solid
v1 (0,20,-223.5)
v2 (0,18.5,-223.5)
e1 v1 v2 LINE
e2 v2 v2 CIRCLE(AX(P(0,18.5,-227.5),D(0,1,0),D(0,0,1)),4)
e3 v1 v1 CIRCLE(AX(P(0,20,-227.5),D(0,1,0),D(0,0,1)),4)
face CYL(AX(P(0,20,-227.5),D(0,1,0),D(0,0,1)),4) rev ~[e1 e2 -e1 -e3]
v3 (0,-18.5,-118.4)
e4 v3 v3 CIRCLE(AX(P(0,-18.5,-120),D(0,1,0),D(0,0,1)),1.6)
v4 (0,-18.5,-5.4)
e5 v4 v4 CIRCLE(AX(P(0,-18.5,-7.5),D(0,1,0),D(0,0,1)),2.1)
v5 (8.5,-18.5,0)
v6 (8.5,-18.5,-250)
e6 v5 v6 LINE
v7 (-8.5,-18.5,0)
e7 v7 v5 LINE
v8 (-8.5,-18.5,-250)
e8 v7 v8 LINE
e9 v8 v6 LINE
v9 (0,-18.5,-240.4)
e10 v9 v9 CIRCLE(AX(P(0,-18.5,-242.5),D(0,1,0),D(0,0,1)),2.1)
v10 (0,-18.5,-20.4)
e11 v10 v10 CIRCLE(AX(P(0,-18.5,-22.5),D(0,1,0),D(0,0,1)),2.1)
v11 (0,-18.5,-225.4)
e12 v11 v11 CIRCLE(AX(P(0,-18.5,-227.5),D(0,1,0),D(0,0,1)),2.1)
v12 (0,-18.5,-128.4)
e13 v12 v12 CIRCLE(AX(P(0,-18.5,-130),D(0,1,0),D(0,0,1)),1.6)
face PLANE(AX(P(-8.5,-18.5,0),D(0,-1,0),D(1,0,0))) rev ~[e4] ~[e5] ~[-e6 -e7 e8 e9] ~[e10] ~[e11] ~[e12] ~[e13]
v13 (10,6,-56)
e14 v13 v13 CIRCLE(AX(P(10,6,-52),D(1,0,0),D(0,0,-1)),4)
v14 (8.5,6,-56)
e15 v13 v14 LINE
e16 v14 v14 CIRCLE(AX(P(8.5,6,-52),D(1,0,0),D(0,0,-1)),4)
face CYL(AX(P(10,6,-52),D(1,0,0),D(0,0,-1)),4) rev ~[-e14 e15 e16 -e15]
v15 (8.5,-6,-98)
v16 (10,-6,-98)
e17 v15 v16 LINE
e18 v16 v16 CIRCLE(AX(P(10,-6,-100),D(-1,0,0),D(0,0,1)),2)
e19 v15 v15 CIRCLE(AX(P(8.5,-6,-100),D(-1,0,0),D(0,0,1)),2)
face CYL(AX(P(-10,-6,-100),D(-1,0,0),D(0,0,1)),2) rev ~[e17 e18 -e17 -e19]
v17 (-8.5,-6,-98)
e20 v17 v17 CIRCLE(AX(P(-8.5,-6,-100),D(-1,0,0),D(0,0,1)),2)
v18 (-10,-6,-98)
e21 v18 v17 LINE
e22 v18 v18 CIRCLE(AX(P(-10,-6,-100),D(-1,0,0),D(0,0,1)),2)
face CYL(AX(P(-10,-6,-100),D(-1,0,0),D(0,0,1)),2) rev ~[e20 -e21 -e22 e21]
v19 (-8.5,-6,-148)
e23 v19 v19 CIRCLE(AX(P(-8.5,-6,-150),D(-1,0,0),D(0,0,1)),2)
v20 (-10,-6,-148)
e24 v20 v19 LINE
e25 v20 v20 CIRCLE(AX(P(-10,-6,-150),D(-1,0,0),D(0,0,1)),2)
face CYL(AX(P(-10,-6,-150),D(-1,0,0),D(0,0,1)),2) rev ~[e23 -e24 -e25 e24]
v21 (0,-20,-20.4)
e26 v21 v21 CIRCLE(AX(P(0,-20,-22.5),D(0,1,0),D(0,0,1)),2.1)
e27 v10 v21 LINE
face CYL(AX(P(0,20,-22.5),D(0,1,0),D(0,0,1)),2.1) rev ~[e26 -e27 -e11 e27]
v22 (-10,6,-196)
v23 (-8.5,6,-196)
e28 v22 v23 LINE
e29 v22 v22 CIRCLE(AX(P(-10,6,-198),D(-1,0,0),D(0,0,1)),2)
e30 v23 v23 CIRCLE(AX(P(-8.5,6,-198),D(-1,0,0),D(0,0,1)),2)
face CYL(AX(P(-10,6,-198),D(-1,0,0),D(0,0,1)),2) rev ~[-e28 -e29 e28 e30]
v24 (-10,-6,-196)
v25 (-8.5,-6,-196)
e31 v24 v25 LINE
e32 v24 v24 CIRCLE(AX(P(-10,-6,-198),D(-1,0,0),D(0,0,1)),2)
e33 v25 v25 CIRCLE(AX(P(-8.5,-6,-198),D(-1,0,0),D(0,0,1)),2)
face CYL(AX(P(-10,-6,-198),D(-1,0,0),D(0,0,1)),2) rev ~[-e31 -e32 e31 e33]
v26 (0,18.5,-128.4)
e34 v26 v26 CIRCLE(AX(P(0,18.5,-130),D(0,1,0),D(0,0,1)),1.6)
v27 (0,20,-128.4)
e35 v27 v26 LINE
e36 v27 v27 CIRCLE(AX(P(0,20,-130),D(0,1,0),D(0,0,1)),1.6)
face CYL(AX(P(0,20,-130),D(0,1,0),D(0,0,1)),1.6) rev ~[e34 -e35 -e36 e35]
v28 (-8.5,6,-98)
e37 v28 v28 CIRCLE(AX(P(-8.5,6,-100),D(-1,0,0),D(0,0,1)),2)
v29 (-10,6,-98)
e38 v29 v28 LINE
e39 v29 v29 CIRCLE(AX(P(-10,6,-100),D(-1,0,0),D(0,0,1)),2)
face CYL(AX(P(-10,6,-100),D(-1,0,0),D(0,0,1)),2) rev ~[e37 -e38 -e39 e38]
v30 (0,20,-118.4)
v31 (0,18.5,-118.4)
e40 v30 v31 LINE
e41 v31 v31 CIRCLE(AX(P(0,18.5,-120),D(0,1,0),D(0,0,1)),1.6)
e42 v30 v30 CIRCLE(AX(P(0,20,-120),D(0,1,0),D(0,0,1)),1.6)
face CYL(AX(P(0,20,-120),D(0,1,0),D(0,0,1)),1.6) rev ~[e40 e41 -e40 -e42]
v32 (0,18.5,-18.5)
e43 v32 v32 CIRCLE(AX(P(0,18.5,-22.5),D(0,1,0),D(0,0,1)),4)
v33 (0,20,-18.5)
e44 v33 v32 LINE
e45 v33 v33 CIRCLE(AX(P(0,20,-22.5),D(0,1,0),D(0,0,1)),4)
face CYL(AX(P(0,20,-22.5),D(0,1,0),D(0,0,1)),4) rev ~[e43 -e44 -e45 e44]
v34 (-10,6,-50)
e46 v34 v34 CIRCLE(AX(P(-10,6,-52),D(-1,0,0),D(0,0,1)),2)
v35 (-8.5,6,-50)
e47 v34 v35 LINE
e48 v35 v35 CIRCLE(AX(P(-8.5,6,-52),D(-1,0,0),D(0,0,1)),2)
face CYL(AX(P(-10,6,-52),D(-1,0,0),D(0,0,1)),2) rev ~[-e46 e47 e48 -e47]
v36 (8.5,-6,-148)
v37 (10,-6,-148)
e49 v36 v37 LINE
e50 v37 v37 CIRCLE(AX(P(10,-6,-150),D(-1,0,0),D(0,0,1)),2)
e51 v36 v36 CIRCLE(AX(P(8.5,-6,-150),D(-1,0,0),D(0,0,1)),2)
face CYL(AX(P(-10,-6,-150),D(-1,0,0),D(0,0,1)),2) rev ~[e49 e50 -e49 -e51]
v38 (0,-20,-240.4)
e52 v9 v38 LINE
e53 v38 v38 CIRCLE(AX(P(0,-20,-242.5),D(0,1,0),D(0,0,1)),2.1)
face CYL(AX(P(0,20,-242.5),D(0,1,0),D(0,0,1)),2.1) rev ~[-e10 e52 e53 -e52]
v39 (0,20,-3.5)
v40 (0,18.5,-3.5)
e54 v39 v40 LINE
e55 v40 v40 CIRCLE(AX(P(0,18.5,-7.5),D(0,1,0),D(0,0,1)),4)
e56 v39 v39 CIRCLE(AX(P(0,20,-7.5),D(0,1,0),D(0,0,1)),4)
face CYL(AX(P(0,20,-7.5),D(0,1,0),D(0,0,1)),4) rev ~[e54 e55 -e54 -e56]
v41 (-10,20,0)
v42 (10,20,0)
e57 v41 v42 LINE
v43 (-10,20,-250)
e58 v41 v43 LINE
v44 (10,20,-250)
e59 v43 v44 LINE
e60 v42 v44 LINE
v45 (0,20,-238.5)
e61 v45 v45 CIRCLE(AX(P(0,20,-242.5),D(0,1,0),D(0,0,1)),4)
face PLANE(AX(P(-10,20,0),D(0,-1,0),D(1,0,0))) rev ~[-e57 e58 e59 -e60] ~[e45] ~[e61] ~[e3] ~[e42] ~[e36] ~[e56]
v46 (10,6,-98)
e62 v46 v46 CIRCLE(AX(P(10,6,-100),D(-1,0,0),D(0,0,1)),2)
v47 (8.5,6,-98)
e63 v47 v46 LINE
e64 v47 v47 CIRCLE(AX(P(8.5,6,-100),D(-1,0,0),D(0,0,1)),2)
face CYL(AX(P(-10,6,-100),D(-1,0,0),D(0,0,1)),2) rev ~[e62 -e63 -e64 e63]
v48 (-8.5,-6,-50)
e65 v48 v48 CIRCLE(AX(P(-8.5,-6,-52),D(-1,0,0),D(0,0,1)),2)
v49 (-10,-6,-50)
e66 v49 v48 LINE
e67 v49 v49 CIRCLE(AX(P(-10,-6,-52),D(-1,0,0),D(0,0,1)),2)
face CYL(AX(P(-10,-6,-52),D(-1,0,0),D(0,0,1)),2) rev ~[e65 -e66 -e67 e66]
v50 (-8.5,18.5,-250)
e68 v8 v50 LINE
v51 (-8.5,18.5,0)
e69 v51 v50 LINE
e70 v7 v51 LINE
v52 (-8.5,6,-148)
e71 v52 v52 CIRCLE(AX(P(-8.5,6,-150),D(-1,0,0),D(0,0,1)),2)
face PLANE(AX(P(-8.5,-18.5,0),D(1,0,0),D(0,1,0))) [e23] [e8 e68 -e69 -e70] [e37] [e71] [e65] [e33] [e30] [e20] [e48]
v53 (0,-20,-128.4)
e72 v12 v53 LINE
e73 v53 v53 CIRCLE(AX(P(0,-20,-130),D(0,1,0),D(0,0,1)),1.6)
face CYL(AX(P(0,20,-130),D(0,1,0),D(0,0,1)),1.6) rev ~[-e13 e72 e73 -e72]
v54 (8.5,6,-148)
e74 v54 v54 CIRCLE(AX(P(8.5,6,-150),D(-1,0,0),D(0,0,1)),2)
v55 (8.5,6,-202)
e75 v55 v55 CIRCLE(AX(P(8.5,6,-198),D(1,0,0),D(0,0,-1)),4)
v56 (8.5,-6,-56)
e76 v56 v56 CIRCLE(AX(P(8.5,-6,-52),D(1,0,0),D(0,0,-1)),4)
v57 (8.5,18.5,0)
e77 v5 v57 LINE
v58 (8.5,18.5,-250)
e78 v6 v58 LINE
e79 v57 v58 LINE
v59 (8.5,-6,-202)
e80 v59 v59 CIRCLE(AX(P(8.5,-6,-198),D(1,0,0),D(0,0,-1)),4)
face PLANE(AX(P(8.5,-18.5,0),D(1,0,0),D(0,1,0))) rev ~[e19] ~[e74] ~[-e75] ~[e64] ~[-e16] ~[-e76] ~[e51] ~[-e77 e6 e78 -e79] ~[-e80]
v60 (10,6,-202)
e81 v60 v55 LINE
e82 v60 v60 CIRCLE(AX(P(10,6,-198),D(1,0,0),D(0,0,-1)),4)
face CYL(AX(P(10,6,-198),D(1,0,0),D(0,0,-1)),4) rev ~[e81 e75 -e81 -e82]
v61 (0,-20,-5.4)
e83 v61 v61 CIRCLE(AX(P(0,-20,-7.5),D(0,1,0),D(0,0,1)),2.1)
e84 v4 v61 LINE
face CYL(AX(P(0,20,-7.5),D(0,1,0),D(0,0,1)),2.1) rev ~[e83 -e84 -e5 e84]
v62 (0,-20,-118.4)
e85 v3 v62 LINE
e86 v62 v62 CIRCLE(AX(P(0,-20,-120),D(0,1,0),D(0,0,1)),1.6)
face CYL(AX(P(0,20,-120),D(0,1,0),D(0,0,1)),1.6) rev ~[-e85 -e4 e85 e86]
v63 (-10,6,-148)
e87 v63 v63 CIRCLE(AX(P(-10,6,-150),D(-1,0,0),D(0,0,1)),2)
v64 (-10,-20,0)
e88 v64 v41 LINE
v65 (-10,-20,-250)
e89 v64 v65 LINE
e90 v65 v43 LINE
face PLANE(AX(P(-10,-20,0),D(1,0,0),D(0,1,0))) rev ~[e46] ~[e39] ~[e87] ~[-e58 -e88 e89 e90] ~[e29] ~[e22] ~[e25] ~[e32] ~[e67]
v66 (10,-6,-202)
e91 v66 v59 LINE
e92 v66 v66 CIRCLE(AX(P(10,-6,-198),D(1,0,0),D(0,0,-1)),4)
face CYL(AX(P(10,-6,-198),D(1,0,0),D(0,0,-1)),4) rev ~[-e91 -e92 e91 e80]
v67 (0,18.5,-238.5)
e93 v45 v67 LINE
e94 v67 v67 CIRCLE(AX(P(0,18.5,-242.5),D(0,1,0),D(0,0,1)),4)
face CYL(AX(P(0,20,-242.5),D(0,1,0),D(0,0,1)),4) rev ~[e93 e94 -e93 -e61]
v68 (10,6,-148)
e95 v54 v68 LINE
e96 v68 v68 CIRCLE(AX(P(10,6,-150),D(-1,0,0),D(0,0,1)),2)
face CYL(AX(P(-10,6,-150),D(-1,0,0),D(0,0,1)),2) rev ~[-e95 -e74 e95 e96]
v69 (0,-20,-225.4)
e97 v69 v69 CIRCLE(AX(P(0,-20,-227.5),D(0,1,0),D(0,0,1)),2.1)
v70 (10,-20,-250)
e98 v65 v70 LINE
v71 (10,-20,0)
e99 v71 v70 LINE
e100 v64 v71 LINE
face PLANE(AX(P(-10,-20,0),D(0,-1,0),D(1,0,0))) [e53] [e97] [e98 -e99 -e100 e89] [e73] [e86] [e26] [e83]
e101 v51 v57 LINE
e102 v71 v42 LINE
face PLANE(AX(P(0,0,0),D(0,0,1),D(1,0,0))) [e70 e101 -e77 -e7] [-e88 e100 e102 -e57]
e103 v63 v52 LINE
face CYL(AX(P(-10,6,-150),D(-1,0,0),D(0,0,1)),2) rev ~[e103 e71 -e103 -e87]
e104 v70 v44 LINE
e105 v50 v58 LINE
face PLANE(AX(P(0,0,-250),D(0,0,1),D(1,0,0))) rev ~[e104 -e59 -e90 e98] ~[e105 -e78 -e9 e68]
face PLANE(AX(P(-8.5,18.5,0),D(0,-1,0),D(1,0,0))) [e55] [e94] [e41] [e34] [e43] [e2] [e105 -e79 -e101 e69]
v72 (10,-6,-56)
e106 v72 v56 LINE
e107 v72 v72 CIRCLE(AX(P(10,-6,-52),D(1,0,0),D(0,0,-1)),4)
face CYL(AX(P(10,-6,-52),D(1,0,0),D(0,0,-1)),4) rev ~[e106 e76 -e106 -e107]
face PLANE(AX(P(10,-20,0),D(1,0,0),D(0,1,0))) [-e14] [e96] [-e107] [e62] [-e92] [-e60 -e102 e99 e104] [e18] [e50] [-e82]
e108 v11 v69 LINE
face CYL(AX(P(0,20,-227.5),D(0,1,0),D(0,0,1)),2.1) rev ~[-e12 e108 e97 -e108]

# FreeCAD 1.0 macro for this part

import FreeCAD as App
import Part
import Sketcher

doc = App.newDocument("Part")
body = doc.addObject("PartDesign::Body", "Body")

# Sketch on XY plane
sketch1 = body.newObject("Sketcher::SketchObject", "Sketch")
sketch1.AttachmentSupport = (doc.getObject("XY_Plane"), [""])
sketch1.MapMode = "FlatFace"
sketch1.addGeometry([
    Part.LineSegment(App.Vector(-10, 20, 0), App.Vector(-10, -20, 0)),  # 0
    Part.LineSegment(App.Vector(-10, -20, 0), App.Vector(10, -20, 0)),  # 1
    Part.LineSegment(App.Vector(10, -20, 0), App.Vector(10, 20, 0)),  # 2
    Part.LineSegment(App.Vector(10, 20, 0), App.Vector(-10, 20, 0)),  # 3
    Part.LineSegment(App.Vector(8, -18, 0), App.Vector(-8, -18, 0)),  # 4
    Part.LineSegment(App.Vector(-8, -18, 0), App.Vector(-8, 18, 0)),  # 5
    Part.LineSegment(App.Vector(-8, 18, 0), App.Vector(8, 18, 0)),  # 6
    Part.LineSegment(App.Vector(8, 18, 0), App.Vector(8, -18, 0)),  # 7
], False)
sketch1.addConstraint([
    Sketcher.Constraint("Coincident", 0, 2, 1, 1),
    Sketcher.Constraint("Coincident", 1, 2, 2, 1),
    Sketcher.Constraint("Coincident", 2, 2, 3, 1),
    Sketcher.Constraint("Coincident", 3, 2, 0, 1),
    Sketcher.Constraint("Coincident", 4, 2, 5, 1),
    Sketcher.Constraint("Coincident", 5, 2, 6, 1),
    Sketcher.Constraint("Coincident", 6, 2, 7, 1),
    Sketcher.Constraint("Coincident", 7, 2, 4, 1),
    Sketcher.Constraint("Vertical", 0),
    Sketcher.Constraint("Horizontal", 1),
    Sketcher.Constraint("Vertical", 2),
    Sketcher.Constraint("Horizontal", 3),
    Sketcher.Constraint("Horizontal", 4),
    Sketcher.Constraint("Vertical", 5),
    Sketcher.Constraint("Horizontal", 6),
    Sketcher.Constraint("Vertical", 7),
    Sketcher.Constraint("Symmetric", 0, 2, 2, 2, -1, 1),
    Sketcher.Constraint("Symmetric", 4, 2, 6, 2, -1, 1),
    Sketcher.Constraint("DistanceX", 1, 1, 1, 2, 20.0),
    Sketcher.Constraint("DistanceX", 4, 2, 4, 1, 17.0),
    Sketcher.Constraint("DistanceY", 0, 2, 0, 1, 40.0),
    Sketcher.Constraint("DistanceY", 5, 1, 5, 2, 37.0),
])
pad1 = body.newObject("PartDesign::Pad", "Pad")
pad1.Profile = sketch1
pad1.Length = 250
pad1.Reversed = True

# Sketch on YZ plane
sketch2 = body.newObject("Sketcher::SketchObject", "Sketch001")
sketch2.AttachmentSupport = (doc.getObject("YZ_Plane"), [""])
sketch2.MapMode = "FlatFace"
sketch2.AttachmentOffset = App.Placement(App.Vector(0, 0, -10), App.Rotation())
sketch2.addGeometry([
    Part.Circle(App.Vector(6, -100, 0), App.Vector(0, 0, 1), 2),  # 0
    Part.Circle(App.Vector(6, -52, 0), App.Vector(0, 0, 1), 2),  # 1
    Part.Circle(App.Vector(-6, -52, 0), App.Vector(0, 0, 1), 2),  # 2
    Part.Circle(App.Vector(-6, -100, 0), App.Vector(0, 0, 1), 2),  # 3
    Part.Circle(App.Vector(-6, -150, 0), App.Vector(0, 0, 1), 2),  # 4
    Part.Circle(App.Vector(-6, -198, 0), App.Vector(0, 0, 1), 2),  # 5
    Part.Circle(App.Vector(6, -198, 0), App.Vector(0, 0, 1), 2),  # 6
    Part.Circle(App.Vector(6, -150, 0), App.Vector(0, 0, 1), 2),  # 7
], False)
sketch2.addConstraint([
    Sketcher.Constraint("Equal", 0, 1),
    Sketcher.Constraint("Equal", 1, 2),
    Sketcher.Constraint("Equal", 2, 3),
    Sketcher.Constraint("Equal", 3, 4),
    Sketcher.Constraint("Equal", 4, 5),
    Sketcher.Constraint("Equal", 5, 6),
    Sketcher.Constraint("Equal", 6, 7),
    Sketcher.Constraint("Symmetric", 1, 3, 2, 3, -2),
    Sketcher.Constraint("Symmetric", 0, 3, 3, 3, -2),
    Sketcher.Constraint("Symmetric", 5, 3, 6, 3, -2),
    Sketcher.Constraint("Symmetric", 4, 3, 7, 3, -2),
    Sketcher.Constraint("Vertical", 0, 3, 1, 3),
    Sketcher.Constraint("Vertical", 3, 3, 4, 3),
    Sketcher.Constraint("Vertical", 4, 3, 5, 3),
    Sketcher.Constraint("Diameter", 0, 4.0),
    Sketcher.Constraint("DistanceX", -1, 1, 0, 3, 6.0),
    Sketcher.Constraint("DistanceY", 0, 3, -1, 1, 100.0),
    Sketcher.Constraint("DistanceY", 1, 3, -1, 1, 52.0),
    Sketcher.Constraint("DistanceY", 4, 3, -1, 1, 150.0),
    Sketcher.Constraint("DistanceY", 5, 3, -1, 1, 198.0),
])
pocket1 = body.newObject("PartDesign::Pocket", "Pocket")
pocket1.Profile = sketch2
pocket1.Type = "ThroughAll"
pocket1.Reversed = True

# Sketch on XZ plane
sketch3 = body.newObject("Sketcher::SketchObject", "Sketch002")
sketch3.AttachmentSupport = (doc.getObject("XZ_Plane"), [""])
sketch3.MapMode = "FlatFace"
sketch3.AttachmentOffset = App.Placement(App.Vector(0, 0, -20), App.Rotation())
sketch3.addGeometry([
    Part.Circle(App.Vector(0, -22.5, 0), App.Vector(0, 0, 1), 2.1),
    Part.Circle(App.Vector(0, -7.5, 0), App.Vector(0, 0, 1), 2.1),
    Part.Circle(App.Vector(0, -242.5, 0), App.Vector(0, 0, 1), 2.1),
    Part.Circle(App.Vector(0, -227.5, 0), App.Vector(0, 0, 1), 2.1),
], False)
sketch3.addConstraint([
    Sketcher.Constraint("Equal", 0, 1),
    Sketcher.Constraint("Equal", 1, 2),
    Sketcher.Constraint("Equal", 2, 3),
    Sketcher.Constraint("PointOnObject", 0, 3, -2),
    Sketcher.Constraint("PointOnObject", 1, 3, -2),
    Sketcher.Constraint("PointOnObject", 2, 3, -2),
    Sketcher.Constraint("PointOnObject", 3, 3, -2),
    Sketcher.Constraint("Diameter", 0, 4.2),
    Sketcher.Constraint("DistanceY", 0, 3, 1, 3, 15.0),
    Sketcher.Constraint("DistanceY", 2, 3, 0, 3, 220.0),
    Sketcher.Constraint("DistanceY", 2, 3, 3, 3, 15.0),
    Sketcher.Constraint("DistanceY", 0, 3, -1, 1, 22.5),
])
pocket2 = body.newObject("PartDesign::Pocket", "Pocket001")
pocket2.Profile = sketch3
pocket2.Type = "ThroughAll"
pocket2.Reversed = True

# Sketch on XZ plane
sketch4 = body.newObject("Sketcher::SketchObject", "Sketch003")
sketch4.AttachmentSupport = (doc.getObject("XZ_Plane"), [""])
sketch4.MapMode = "FlatFace"
sketch4.AttachmentOffset = App.Placement(App.Vector(0, 0, -20), App.Rotation())
sketch4.addGeometry([
    Part.Circle(App.Vector(0, -130, 0), App.Vector(0, 0, 1), 1.6),
    Part.Circle(App.Vector(0, -120, 0), App.Vector(0, 0, 1), 1.6),
], False)
sketch4.addConstraint([
    Sketcher.Constraint("Equal", 0, 1),
    Sketcher.Constraint("PointOnObject", 0, 3, -2),
    Sketcher.Constraint("PointOnObject", 1, 3, -2),
    Sketcher.Constraint("Diameter", 0, 3.2),
    Sketcher.Constraint("DistanceY", 0, 3, -1, 1, 130.0),
    Sketcher.Constraint("DistanceY", 1, 3, -1, 1, 120.0),
])
pocket3 = body.newObject("PartDesign::Pocket", "Pocket002")
pocket3.Profile = sketch4
pocket3.Type = "ThroughAll"
pocket3.Reversed = True

# Sketch on XZ plane
sketch5 = body.newObject("Sketcher::SketchObject", "Sketch004")
sketch5.AttachmentSupport = (doc.getObject("XZ_Plane"), [""])
sketch5.MapMode = "FlatFace"
sketch5.AttachmentOffset = App.Placement(App.Vector(0, 0, -20), App.Rotation())
sketch5.addGeometry([
    Part.Circle(App.Vector(0, -22.5, 0), App.Vector(0, 0, 1), 4),
    Part.Circle(App.Vector(0, -7.5, 0), App.Vector(0, 0, 1), 4),
    Part.Circle(App.Vector(0, -242.5, 0), App.Vector(0, 0, 1), 4),
    Part.Circle(App.Vector(0, -227.5, 0), App.Vector(0, 0, 1), 4),
], False)
sketch5.addConstraint([
    Sketcher.Constraint("Equal", 0, 1),
    Sketcher.Constraint("Equal", 1, 2),
    Sketcher.Constraint("Equal", 2, 3),
    Sketcher.Constraint("PointOnObject", 0, 3, -2),
    Sketcher.Constraint("PointOnObject", 1, 3, -2),
    Sketcher.Constraint("PointOnObject", 2, 3, -2),
    Sketcher.Constraint("PointOnObject", 3, 3, -2),
    Sketcher.Constraint("Diameter", 0, 8.0),
    Sketcher.Constraint("DistanceY", 0, 3, 1, 3, 15.0),
    Sketcher.Constraint("DistanceY", 2, 3, 0, 3, 220.0),
    Sketcher.Constraint("DistanceY", 2, 3, 3, 3, 15.0),
    Sketcher.Constraint("DistanceY", 0, 3, -1, 1, 22.5),
])
pocket4 = body.newObject("PartDesign::Pocket", "Pocket003")
pocket4.Profile = sketch5
pocket4.Length = 10
pocket4.Reversed = True

# Sketch on YZ plane
sketch6 = body.newObject("Sketcher::SketchObject", "Sketch005")
sketch6.AttachmentSupport = (doc.getObject("YZ_Plane"), [""])
sketch6.MapMode = "FlatFace"
sketch6.AttachmentOffset = App.Placement(App.Vector(0, 0, 10), App.Rotation())
sketch6.addGeometry([
    Part.Circle(App.Vector(6, -52, 0), App.Vector(0, 0, 1), 4),
    Part.Circle(App.Vector(-6, -52, 0), App.Vector(0, 0, 1), 4),
    Part.Circle(App.Vector(6, -198, 0), App.Vector(0, 0, 1), 4),
    Part.Circle(App.Vector(-6, -198, 0), App.Vector(0, 0, 1), 4),
], False)
sketch6.addConstraint([
    Sketcher.Constraint("Equal", 0, 1),
    Sketcher.Constraint("Equal", 1, 2),
    Sketcher.Constraint("Equal", 2, 3),
    Sketcher.Constraint("Symmetric", 0, 3, 1, 3, -2),
    Sketcher.Constraint("Symmetric", 2, 3, 3, 3, -2),
    Sketcher.Constraint("Vertical", 0, 3, 2, 3),
    Sketcher.Constraint("Diameter", 0, 8.0),
    Sketcher.Constraint("DistanceX", -1, 1, 0, 3, 6.0),
    Sketcher.Constraint("DistanceY", 0, 3, -1, 1, 52.0),
    Sketcher.Constraint("DistanceY", 2, 3, -1, 1, 198.0),
])
pocket5 = body.newObject("PartDesign::Pocket", "Pocket004")
pocket5.Profile = sketch6
pocket5.Length = 10

doc.recompute()
